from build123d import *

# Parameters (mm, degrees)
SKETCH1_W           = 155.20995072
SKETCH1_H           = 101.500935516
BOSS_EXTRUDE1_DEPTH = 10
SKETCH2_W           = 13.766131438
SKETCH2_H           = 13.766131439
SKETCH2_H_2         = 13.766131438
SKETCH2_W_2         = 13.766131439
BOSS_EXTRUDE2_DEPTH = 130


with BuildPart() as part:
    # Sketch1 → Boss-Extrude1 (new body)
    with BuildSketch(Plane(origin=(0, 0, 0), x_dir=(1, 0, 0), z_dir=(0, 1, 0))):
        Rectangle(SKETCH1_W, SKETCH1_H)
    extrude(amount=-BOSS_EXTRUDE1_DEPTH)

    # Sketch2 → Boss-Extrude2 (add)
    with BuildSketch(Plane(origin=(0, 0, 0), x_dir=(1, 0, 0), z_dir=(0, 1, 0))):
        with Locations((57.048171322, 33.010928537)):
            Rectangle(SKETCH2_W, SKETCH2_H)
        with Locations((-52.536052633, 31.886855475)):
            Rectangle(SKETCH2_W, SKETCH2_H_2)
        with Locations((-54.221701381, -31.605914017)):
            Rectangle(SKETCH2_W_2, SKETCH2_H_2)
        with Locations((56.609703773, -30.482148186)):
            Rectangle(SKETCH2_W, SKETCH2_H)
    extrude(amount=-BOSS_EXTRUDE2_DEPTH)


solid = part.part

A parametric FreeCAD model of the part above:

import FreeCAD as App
import Part
import Sketcher
Q = App.Units.Quantity

doc = App.newDocument("Part")
body = doc.addObject("PartDesign::Body", "Body")

# Sketch on XZ plane
sketch1 = doc.addObject("Sketcher::SketchObject", "Sketch")
body.addObject(sketch1)
sketch1.AttachmentSupport = (doc.XZ_Plane, [""])
sketch1.MapMode = "FlatFace"
sketch1.addGeometry([
    Part.LineSegment(App.Vector(-78, -51, 0), App.Vector(-78, 51, 0)),
    Part.LineSegment(App.Vector(-78, 51, 0), App.Vector(78, 51, 0)),
    Part.LineSegment(App.Vector(78, 51, 0), App.Vector(78, -51, 0)),
    Part.LineSegment(App.Vector(78, -51, 0), App.Vector(-78, -51, 0)),
], False)
sketch1.addConstraint([
    Sketcher.Constraint("Coincident", 0, 2, 1, 1),
    Sketcher.Constraint("Coincident", 1, 2, 2, 1),
    Sketcher.Constraint("Coincident", 2, 2, 3, 1),
    Sketcher.Constraint("Coincident", 3, 2, 0, 1),
    Sketcher.Constraint("Vertical", 0),
    Sketcher.Constraint("Horizontal", 1),
    Sketcher.Constraint("Vertical", 2),
    Sketcher.Constraint("Horizontal", 3),
    Sketcher.Constraint("Symmetric", 0, 2, 2, 2, -1, 1),
    Sketcher.Constraint("DistanceX", 1, 1, 1, 2, Q("155.209951 mm")),
    Sketcher.Constraint("DistanceY", 0, 1, 0, 2, Q("101.500936 mm")),
])
pad1 = doc.addObject("PartDesign::Pad", "Pad")
body.addObject(pad1)
pad1.Profile = sketch1
pad1.Length = 10

# Sketch on XZ plane
sketch2 = doc.addObject("Sketcher::SketchObject", "Sketch001")
body.addObject(sketch2)
sketch2.AttachmentSupport = (doc.XZ_Plane, [""])
sketch2.MapMode = "FlatFace"
sketch2.addGeometry([
    Part.LineSegment(App.Vector(50, -40, 0), App.Vector(50, -26, 0)),  # 0
    Part.LineSegment(App.Vector(50, -26, 0), App.Vector(64, -26, 0)),  # 1
    Part.LineSegment(App.Vector(64, -26, 0), App.Vector(64, -40, 0)),  # 2
    Part.LineSegment(App.Vector(64, -40, 0), App.Vector(50, -40, 0)),  # 3
    Part.LineSegment(App.Vector(-59, -39, 0), App.Vector(-59, -25, 0)),  # 4
    Part.LineSegment(App.Vector(-59, -25, 0), App.Vector(-46, -25, 0)),  # 5
    Part.LineSegment(App.Vector(-46, -25, 0), App.Vector(-46, -39, 0)),  # 6
    Part.LineSegment(App.Vector(-46, -39, 0), App.Vector(-59, -39, 0)),  # 7
    Part.LineSegment(App.Vector(-61, 25, 0), App.Vector(-61, 38, 0)),  # 8
    Part.LineSegment(App.Vector(-61, 38, 0), App.Vector(-47, 38, 0)),  # 9
    Part.LineSegment(App.Vector(-47, 38, 0), App.Vector(-47, 25, 0)),  # 10
    Part.LineSegment(App.Vector(-47, 25, 0), App.Vector(-61, 25, 0)),  # 11
    Part.LineSegment(App.Vector(50, 24, 0), App.Vector(50, 37, 0)),  # 12
    Part.LineSegment(App.Vector(50, 37, 0), App.Vector(63, 37, 0)),  # 13
    Part.LineSegment(App.Vector(63, 37, 0), App.Vector(63, 24, 0)),  # 14
    Part.LineSegment(App.Vector(63, 24, 0), App.Vector(50, 24, 0)),  # 15
], False)
sketch2.addConstraint([
    Sketcher.Constraint("Coincident", 0, 2, 1, 1),
    Sketcher.Constraint("Coincident", 1, 2, 2, 1),
    Sketcher.Constraint("Coincident", 2, 2, 3, 1),
    Sketcher.Constraint("Coincident", 3, 2, 0, 1),
    Sketcher.Constraint("Coincident", 4, 2, 5, 1),
    Sketcher.Constraint("Coincident", 5, 2, 6, 1),
    Sketcher.Constraint("Coincident", 6, 2, 7, 1),
    Sketcher.Constraint("Coincident", 7, 2, 4, 1),
    Sketcher.Constraint("Coincident", 8, 2, 9, 1),
    Sketcher.Constraint("Coincident", 9, 2, 10, 1),
    Sketcher.Constraint("Coincident", 10, 2, 11, 1),
    Sketcher.Constraint("Coincident", 11, 2, 8, 1),
    Sketcher.Constraint("Coincident", 12, 2, 13, 1),
    Sketcher.Constraint("Coincident", 13, 2, 14, 1),
    Sketcher.Constraint("Coincident", 14, 2, 15, 1),
    Sketcher.Constraint("Coincident", 15, 2, 12, 1),
    Sketcher.Constraint("Vertical", 0),
    Sketcher.Constraint("Horizontal", 1),
    Sketcher.Constraint("Vertical", 2),
    Sketcher.Constraint("Horizontal", 3),
    Sketcher.Constraint("Vertical", 4),
    Sketcher.Constraint("Horizontal", 5),
    Sketcher.Constraint("Vertical", 6),
    Sketcher.Constraint("Horizontal", 7),
    Sketcher.Constraint("Vertical", 8),
    Sketcher.Constraint("Horizontal", 9),
    Sketcher.Constraint("Vertical", 10),
    Sketcher.Constraint("Horizontal", 11),
    Sketcher.Constraint("Vertical", 12),
    Sketcher.Constraint("Horizontal", 13),
    Sketcher.Constraint("Vertical", 14),
    Sketcher.Constraint("Horizontal", 15),
    Sketcher.Constraint("Equal", 3, 5),
    Sketcher.Constraint("Equal", 7, 9),
    Sketcher.Constraint("Equal", 11, 13),
    Sketcher.Constraint("Equal", 15, 0),
    Sketcher.Constraint("Equal", 2, 4),
    Sketcher.Constraint("Equal", 6, 8),
    Sketcher.Constraint("Equal", 10, 12),
    Sketcher.Constraint("DistanceX", 1, 1, 1, 2, Q("13.766131 mm")),
    Sketcher.Constraint("DistanceY", 7, 2, 8, 2, Q("77.258901 mm")),
    Sketcher.Constraint("DistanceX", 12, 2, 1, 2, Q("14.204599 mm")),
    Sketcher.Constraint("DistanceX", 4, 2, -1, 1, Q("59.419118 mm")),
    Sketcher.Constraint("DistanceY", 4, 2, -1, 1, Q("25.00379 mm")),
    Sketcher.Constraint("DistanceX", -1, 1, 12, 2, Q("49.726638 mm")),
    Sketcher.Constraint("DistanceY", 6, 2, 0, 2, Q("12.642058 mm")),
    Sketcher.Constraint("DistanceX", 8, 2, 4, 2, Q("1.685649 mm")),
    Sketcher.Constraint("DistanceY", 3, 2, 12, 2, Q("77.259208 mm")),
])
pad2 = doc.addObject("PartDesign::Pad", "Pad001")
body.addObject(pad2)
pad2.Profile = sketch2
pad2.Length = 130

doc.recompute()
